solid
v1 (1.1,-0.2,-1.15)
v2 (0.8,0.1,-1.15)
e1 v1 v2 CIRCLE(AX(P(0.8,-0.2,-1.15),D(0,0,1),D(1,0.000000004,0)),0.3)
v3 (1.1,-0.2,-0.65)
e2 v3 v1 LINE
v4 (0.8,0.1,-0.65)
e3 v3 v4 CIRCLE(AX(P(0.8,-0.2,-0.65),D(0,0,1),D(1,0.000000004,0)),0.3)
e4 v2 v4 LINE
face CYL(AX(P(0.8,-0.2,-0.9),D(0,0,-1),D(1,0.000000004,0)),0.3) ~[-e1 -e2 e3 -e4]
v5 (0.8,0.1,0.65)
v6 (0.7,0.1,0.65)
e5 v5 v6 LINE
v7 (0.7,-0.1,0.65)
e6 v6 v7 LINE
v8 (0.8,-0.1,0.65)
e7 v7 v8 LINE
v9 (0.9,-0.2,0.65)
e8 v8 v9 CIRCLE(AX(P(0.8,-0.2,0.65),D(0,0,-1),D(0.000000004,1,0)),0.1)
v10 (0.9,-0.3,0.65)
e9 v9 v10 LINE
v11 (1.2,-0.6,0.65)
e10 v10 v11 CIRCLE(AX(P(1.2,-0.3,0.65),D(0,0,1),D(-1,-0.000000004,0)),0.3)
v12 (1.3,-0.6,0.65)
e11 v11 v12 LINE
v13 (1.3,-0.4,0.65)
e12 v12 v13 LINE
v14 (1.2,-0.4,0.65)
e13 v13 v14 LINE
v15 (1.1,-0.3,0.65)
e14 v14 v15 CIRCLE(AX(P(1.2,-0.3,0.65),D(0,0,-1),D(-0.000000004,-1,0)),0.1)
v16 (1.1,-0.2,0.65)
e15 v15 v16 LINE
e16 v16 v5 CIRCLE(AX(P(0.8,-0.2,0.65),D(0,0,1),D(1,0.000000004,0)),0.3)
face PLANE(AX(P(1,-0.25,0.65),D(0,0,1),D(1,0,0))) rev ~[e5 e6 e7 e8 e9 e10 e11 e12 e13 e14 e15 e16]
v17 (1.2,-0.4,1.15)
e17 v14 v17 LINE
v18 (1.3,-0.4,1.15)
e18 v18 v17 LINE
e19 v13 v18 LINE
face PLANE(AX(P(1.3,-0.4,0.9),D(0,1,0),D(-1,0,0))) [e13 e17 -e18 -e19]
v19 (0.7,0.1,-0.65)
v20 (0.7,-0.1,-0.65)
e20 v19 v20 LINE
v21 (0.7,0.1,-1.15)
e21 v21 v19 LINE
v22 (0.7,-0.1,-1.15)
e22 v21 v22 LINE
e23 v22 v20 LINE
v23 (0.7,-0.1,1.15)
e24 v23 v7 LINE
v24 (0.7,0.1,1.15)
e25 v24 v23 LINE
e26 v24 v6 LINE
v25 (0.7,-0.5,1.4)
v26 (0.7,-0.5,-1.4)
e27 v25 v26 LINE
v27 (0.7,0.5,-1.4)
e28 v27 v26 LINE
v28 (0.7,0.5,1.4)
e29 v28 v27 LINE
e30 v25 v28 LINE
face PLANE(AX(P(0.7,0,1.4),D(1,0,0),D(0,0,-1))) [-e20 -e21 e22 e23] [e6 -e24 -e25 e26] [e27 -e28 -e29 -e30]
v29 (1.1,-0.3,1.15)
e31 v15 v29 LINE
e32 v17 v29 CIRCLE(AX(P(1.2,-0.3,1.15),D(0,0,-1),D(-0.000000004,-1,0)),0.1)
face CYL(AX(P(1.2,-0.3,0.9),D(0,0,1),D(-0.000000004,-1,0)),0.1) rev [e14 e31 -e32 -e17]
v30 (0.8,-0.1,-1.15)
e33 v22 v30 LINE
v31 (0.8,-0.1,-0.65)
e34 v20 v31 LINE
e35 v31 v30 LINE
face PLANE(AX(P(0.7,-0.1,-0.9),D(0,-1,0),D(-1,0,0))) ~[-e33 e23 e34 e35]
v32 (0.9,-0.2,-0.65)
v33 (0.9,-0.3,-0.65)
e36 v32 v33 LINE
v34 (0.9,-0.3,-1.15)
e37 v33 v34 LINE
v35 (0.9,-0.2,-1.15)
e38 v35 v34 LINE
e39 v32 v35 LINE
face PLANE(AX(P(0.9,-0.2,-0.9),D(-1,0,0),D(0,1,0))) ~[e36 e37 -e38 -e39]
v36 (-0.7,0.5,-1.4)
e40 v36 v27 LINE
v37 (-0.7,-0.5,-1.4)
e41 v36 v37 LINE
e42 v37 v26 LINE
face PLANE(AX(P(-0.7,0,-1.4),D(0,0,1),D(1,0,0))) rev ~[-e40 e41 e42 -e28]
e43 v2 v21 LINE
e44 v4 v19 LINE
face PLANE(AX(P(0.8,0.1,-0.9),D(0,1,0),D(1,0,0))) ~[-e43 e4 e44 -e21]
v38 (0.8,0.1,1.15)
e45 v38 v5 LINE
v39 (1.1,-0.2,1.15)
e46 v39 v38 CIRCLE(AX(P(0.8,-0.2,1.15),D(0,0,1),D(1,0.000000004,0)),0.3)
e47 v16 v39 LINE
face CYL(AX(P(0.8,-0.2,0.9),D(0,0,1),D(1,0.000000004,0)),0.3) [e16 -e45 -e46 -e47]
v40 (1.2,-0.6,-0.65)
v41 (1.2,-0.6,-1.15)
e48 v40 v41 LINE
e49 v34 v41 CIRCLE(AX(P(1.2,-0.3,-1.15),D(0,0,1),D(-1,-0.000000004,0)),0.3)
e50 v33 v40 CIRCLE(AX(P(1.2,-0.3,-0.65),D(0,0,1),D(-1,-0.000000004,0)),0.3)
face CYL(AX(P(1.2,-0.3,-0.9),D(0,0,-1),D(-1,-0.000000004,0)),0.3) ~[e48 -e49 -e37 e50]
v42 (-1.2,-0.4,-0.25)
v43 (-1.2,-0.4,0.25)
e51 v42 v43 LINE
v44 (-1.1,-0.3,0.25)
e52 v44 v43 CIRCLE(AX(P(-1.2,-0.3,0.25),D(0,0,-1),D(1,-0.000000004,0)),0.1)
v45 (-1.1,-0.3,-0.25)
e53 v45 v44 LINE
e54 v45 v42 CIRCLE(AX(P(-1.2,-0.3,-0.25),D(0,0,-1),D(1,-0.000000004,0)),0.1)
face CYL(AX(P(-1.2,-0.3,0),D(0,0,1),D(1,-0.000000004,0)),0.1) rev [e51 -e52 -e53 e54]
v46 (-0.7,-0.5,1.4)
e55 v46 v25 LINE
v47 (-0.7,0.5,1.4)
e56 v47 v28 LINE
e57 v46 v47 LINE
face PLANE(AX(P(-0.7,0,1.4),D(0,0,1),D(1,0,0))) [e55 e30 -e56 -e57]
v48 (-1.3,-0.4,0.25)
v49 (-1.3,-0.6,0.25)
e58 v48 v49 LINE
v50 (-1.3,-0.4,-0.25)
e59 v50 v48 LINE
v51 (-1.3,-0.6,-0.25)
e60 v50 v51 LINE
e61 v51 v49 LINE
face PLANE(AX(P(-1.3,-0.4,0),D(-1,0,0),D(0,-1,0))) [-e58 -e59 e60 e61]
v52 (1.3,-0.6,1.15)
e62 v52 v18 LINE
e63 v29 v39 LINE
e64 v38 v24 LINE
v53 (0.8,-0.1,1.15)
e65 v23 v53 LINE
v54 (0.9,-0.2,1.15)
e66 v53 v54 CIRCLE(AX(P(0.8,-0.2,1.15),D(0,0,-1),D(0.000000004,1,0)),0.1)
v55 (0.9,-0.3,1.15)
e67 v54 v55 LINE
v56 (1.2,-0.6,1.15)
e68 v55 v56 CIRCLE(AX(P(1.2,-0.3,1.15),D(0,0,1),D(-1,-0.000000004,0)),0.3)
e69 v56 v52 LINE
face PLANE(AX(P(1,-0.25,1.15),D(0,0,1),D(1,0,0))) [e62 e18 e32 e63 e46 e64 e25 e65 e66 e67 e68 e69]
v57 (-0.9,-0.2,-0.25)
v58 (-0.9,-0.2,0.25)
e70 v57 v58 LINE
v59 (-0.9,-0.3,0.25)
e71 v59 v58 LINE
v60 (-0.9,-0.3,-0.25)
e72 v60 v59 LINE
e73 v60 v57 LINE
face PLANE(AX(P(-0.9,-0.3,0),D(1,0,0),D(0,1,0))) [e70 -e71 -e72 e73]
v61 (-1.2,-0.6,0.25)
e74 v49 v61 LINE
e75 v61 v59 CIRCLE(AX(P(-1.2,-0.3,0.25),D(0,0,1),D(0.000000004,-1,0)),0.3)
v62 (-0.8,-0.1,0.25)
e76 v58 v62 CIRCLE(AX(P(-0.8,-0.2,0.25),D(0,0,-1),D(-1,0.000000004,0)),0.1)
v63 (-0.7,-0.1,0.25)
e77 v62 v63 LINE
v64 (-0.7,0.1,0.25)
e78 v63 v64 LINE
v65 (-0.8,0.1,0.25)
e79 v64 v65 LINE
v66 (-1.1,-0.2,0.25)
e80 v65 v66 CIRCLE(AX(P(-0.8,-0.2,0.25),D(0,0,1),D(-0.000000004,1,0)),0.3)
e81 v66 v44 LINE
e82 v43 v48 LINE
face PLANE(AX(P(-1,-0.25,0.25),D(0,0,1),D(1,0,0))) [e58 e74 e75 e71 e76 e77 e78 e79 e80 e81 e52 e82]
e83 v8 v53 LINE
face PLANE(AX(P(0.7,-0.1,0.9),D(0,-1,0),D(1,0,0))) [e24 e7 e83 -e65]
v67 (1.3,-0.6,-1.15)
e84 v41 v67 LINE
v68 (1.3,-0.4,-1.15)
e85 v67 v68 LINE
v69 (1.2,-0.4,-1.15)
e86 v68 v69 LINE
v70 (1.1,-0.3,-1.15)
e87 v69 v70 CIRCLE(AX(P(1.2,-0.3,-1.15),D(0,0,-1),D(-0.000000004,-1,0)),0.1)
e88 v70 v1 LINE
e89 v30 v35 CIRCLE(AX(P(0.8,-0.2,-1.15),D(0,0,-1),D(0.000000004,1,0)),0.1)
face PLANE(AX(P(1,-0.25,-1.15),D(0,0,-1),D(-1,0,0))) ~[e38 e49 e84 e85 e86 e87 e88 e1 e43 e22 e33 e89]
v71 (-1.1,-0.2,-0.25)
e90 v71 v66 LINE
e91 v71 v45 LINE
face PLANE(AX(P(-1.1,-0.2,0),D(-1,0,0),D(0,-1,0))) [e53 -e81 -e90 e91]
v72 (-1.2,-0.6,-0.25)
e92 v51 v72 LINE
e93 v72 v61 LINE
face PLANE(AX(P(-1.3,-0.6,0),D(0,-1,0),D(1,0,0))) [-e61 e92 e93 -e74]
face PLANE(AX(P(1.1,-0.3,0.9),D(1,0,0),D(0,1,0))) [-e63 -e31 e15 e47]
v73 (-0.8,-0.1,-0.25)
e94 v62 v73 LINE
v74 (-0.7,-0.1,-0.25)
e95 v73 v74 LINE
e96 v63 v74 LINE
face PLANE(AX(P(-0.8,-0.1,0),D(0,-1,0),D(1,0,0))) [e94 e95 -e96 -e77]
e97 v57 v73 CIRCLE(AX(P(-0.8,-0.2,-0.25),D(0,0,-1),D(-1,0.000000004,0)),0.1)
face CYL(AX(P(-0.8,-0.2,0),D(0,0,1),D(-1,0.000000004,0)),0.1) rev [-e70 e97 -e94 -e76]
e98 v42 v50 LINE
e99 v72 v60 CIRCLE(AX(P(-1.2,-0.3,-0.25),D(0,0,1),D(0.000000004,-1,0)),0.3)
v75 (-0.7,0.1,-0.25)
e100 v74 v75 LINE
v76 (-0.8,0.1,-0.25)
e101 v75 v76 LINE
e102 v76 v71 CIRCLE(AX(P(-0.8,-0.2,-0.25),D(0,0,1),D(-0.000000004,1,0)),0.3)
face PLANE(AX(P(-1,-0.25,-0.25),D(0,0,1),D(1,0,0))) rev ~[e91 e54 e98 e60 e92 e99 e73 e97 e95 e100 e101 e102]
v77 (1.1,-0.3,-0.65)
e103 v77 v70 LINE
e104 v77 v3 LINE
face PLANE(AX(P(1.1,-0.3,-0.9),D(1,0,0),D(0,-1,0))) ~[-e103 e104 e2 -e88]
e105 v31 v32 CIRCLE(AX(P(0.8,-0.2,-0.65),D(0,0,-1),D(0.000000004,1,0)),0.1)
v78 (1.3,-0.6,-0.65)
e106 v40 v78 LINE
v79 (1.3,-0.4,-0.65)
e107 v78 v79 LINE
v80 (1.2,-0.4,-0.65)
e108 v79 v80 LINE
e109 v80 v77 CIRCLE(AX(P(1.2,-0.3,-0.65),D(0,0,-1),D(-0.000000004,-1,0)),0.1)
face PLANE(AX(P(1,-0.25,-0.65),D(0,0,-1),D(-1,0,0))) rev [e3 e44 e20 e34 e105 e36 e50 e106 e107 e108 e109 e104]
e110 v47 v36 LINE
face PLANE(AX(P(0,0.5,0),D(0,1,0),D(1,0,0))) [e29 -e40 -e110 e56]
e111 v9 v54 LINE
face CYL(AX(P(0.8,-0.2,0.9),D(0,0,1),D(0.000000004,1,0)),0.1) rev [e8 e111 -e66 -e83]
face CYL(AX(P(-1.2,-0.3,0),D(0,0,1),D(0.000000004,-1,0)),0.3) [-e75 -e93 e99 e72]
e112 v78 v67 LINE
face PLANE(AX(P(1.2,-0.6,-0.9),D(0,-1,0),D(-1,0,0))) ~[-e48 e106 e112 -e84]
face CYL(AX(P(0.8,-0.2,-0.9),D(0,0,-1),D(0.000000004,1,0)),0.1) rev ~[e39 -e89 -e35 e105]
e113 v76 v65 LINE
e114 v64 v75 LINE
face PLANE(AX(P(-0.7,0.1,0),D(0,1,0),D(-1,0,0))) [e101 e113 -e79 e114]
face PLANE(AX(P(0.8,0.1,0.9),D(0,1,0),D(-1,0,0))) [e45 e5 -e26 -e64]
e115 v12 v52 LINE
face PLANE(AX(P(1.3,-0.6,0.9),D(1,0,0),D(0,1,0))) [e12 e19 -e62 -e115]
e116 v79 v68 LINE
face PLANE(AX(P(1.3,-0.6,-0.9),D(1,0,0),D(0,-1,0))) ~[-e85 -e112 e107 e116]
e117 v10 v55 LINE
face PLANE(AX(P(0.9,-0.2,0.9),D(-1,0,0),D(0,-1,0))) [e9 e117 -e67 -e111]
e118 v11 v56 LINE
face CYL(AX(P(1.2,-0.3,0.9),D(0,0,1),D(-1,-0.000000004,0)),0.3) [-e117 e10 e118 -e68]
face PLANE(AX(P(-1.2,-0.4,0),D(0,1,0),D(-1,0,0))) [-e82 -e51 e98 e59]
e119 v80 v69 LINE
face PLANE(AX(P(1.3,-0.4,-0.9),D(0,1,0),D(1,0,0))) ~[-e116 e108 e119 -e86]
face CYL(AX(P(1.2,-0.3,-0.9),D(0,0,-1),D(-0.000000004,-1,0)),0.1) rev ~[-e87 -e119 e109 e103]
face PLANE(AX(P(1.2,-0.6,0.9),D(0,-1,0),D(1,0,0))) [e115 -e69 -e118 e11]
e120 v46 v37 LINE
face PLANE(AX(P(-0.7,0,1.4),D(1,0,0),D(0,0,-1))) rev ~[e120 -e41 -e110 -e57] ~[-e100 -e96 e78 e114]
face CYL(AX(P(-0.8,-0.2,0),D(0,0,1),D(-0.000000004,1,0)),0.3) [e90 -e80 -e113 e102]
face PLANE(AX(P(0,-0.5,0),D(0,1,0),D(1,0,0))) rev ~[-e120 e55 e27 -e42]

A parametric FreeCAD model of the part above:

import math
import FreeCAD as App
import Part
import Sketcher


def add_polygon(sketch, points):
    """Adds a closed chain of lines whose ends are joined by coincident constraints."""
    first, n = sketch.GeometryCount, len(points)
    for a, b in zip(points, points[1:] + points[:1]):
        sketch.addGeometry(Part.LineSegment(App.Vector(*a, 0), App.Vector(*b, 0)), False)
    for i in range(n):
        sketch.addConstraint(Sketcher.Constraint("Coincident", first + i, 2, first + (i + 1) % n, 1))

doc = App.newDocument("Part")
body = doc.addObject("PartDesign::Body", "Body")

# Sketch on XZ plane
sketch1 = body.newObject("Sketcher::SketchObject", "Sketch")
sketch1.AttachmentSupport = (doc.getObject("XZ_Plane"), [""])
sketch1.MapMode = "FlatFace"
add_polygon(sketch1, [(-0.7, -1.4), (-0.7, 1.4), (0.7, 1.4), (0.7, -1.4)])  # lines 0-3
sketch1.addConstraint(Sketcher.Constraint("Vertical", 0))
sketch1.addConstraint(Sketcher.Constraint("Horizontal", 1))
sketch1.addConstraint(Sketcher.Constraint("Vertical", 2))
sketch1.addConstraint(Sketcher.Constraint("Horizontal", 3))
sketch1.addConstraint(Sketcher.Constraint("Symmetric", 0, 2, 2, 2, -1, 1))
sketch1.addConstraint(Sketcher.Constraint("DistanceX", 1, 1, 1, 2, 1.4))
sketch1.addConstraint(Sketcher.Constraint("DistanceY", 0, 1, 0, 2, 2.8))
pad1 = body.newObject("PartDesign::Pad", "Pad")
pad1.Profile = sketch1
pad1.Length = 1
pad1.Midplane = True

# Sketch on XY plane
sketch2 = body.newObject("Sketcher::SketchObject", "Sketch001")
sketch2.AttachmentSupport = (doc.getObject("XY_Plane"), [""])
sketch2.MapMode = "FlatFace"
sketch2.addGeometry(Part.LineSegment(App.Vector(-0.7, 0.1, 0), App.Vector(-0.8, 0.1, 0)), False)
sketch2.addGeometry(Part.ArcOfCircle(Part.Circle(App.Vector(-0.8, -0.2, 0), App.Vector(0, 0, 1), 0.3), math.radians(90), math.radians(180)), False)
sketch2.addGeometry(Part.LineSegment(App.Vector(-1.1, -0.2, 0), App.Vector(-1.1, -0.3, 0)), False)
sketch2.addGeometry(Part.ArcOfCircle(Part.Circle(App.Vector(-1.2, -0.3, 0), App.Vector(0, 0, 1), 0.1), math.radians(-90), math.radians(0)), False)
sketch2.addGeometry(Part.LineSegment(App.Vector(-1.2, -0.4, 0), App.Vector(-1.3, -0.4, 0)), False)
sketch2.addGeometry(Part.LineSegment(App.Vector(-1.3, -0.4, 0), App.Vector(-1.3, -0.6, 0)), False)
sketch2.addGeometry(Part.LineSegment(App.Vector(-1.3, -0.6, 0), App.Vector(-1.2, -0.6, 0)), False)
sketch2.addGeometry(Part.ArcOfCircle(Part.Circle(App.Vector(-1.2, -0.3, 0), App.Vector(0, 0, 1), 0.3), math.radians(-90), math.radians(0)), False)
sketch2.addGeometry(Part.LineSegment(App.Vector(-0.9, -0.3, 0), App.Vector(-0.9, -0.2, 0)), False)
sketch2.addGeometry(Part.ArcOfCircle(Part.Circle(App.Vector(-0.8, -0.2, 0), App.Vector(0, 0, 1), 0.1), math.radians(90), math.radians(180)), False)
sketch2.addGeometry(Part.LineSegment(App.Vector(-0.8, -0.1, 0), App.Vector(-0.7, -0.1, 0)), False)
sketch2.addGeometry(Part.LineSegment(App.Vector(-0.7, -0.1, 0), App.Vector(-0.7, 0.1, 0)), False)
sketch2.addConstraint(Sketcher.Constraint("Tangent", 0, 2, 1, 1))
sketch2.addConstraint(Sketcher.Constraint("Tangent", 1, 2, 2, 1))
sketch2.addConstraint(Sketcher.Constraint("Tangent", 2, 2, 3, 2))
sketch2.addConstraint(Sketcher.Constraint("Tangent", 3, 1, 4, 1))
sketch2.addConstraint(Sketcher.Constraint("Coincident", 4, 2, 5, 1))
sketch2.addConstraint(Sketcher.Constraint("Coincident", 5, 2, 6, 1))
sketch2.addConstraint(Sketcher.Constraint("Tangent", 6, 2, 7, 1))
sketch2.addConstraint(Sketcher.Constraint("Tangent", 7, 2, 8, 1))
sketch2.addConstraint(Sketcher.Constraint("Tangent", 8, 2, 9, 2))
sketch2.addConstraint(Sketcher.Constraint("Tangent", 9, 1, 10, 1))
sketch2.addConstraint(Sketcher.Constraint("Coincident", 10, 2, 11, 1))
sketch2.addConstraint(Sketcher.Constraint("Coincident", 11, 2, 0, 1))
sketch2.addConstraint(Sketcher.Constraint("Horizontal", 0))
sketch2.addConstraint(Sketcher.Constraint("Vertical", 2))
sketch2.addConstraint(Sketcher.Constraint("Horizontal", 4))
sketch2.addConstraint(Sketcher.Constraint("Vertical", 5))
sketch2.addConstraint(Sketcher.Constraint("Horizontal", 6))
sketch2.addConstraint(Sketcher.Constraint("Vertical", 8))
sketch2.addConstraint(Sketcher.Constraint("Horizontal", 10))
sketch2.addConstraint(Sketcher.Constraint("Vertical", 11))
sketch2.addConstraint(Sketcher.Constraint("Coincident", 7, 3, 3, 3))
sketch2.addConstraint(Sketcher.Constraint("Coincident", 9, 3, 1, 3))
sketch2.addConstraint(Sketcher.Constraint("Equal", 1, 7))
sketch2.addConstraint(Sketcher.Constraint("Equal", 0, 4))
sketch2.addConstraint(Sketcher.Constraint("Equal", 10, 2))
sketch2.addConstraint(Sketcher.Constraint("Radius", 1, 0.3))
sketch2.addConstraint(Sketcher.Constraint("Radius", 3, 0.1))
sketch2.addConstraint(Sketcher.Constraint("DistanceX", 0, 2, 0, 1, 0.1))
sketch2.addConstraint(Sketcher.Constraint("DistanceX", 1, 3, -1, 1, 0.8))
sketch2.addConstraint(Sketcher.Constraint("DistanceY", 1, 3, -1, 1, 0.2))
pad2 = body.newObject("PartDesign::Pad", "Pad001")
pad2.Profile = sketch2
pad2.Length = 0.5
pad2.Midplane = True

# Sketch on XY plane
sketch3 = body.newObject("Sketcher::SketchObject", "Sketch002")
sketch3.AttachmentSupport = (doc.getObject("XY_Plane"), [""])
sketch3.MapMode = "FlatFace"
sketch3.AttachmentOffset = App.Placement(App.Vector(0, 0, 0.9), App.Rotation())
sketch3.addGeometry(Part.LineSegment(App.Vector(0.7, -0.1, 0), App.Vector(0.8, -0.1, 0)), False)
sketch3.addGeometry(Part.ArcOfCircle(Part.Circle(App.Vector(0.8, -0.2, 0), App.Vector(0, 0, 1), 0.1), math.radians(0), math.radians(90)), False)
sketch3.addGeometry(Part.LineSegment(App.Vector(0.9, -0.2, 0), App.Vector(0.9, -0.3, 0)), False)
sketch3.addGeometry(Part.ArcOfCircle(Part.Circle(App.Vector(1.2, -0.3, 0), App.Vector(0, 0, 1), 0.3), math.radians(-180), math.radians(-90)), False)
sketch3.addGeometry(Part.LineSegment(App.Vector(1.2, -0.6, 0), App.Vector(1.3, -0.6, 0)), False)
sketch3.addGeometry(Part.LineSegment(App.Vector(1.3, -0.6, 0), App.Vector(1.3, -0.4, 0)), False)
sketch3.addGeometry(Part.LineSegment(App.Vector(1.3, -0.4, 0), App.Vector(1.2, -0.4, 0)), False)
sketch3.addGeometry(Part.ArcOfCircle(Part.Circle(App.Vector(1.2, -0.3, 0), App.Vector(0, 0, 1), 0.1), math.radians(180), math.radians(270)), False)
sketch3.addGeometry(Part.LineSegment(App.Vector(1.1, -0.3, 0), App.Vector(1.1, -0.2, 0)), False)
sketch3.addGeometry(Part.ArcOfCircle(Part.Circle(App.Vector(0.8, -0.2, 0), App.Vector(0, 0, 1), 0.3), math.radians(0), math.radians(90)), False)
sketch3.addGeometry(Part.LineSegment(App.Vector(0.8, 0.1, 0), App.Vector(0.7, 0.1, 0)), False)
sketch3.addGeometry(Part.LineSegment(App.Vector(0.7, 0.1, 0), App.Vector(0.7, -0.1, 0)), False)
sketch3.addConstraint(Sketcher.Constraint("Tangent", 0, 2, 1, 2))
sketch3.addConstraint(Sketcher.Constraint("Tangent", 1, 1, 2, 1))
sketch3.addConstraint(Sketcher.Constraint("Tangent", 2, 2, 3, 1))
sketch3.addConstraint(Sketcher.Constraint("Tangent", 3, 2, 4, 1))
sketch3.addConstraint(Sketcher.Constraint("Coincident", 4, 2, 5, 1))
sketch3.addConstraint(Sketcher.Constraint("Coincident", 5, 2, 6, 1))
sketch3.addConstraint(Sketcher.Constraint("Tangent", 6, 2, 7, 2))
sketch3.addConstraint(Sketcher.Constraint("Tangent", 7, 1, 8, 1))
sketch3.addConstraint(Sketcher.Constraint("Tangent", 8, 2, 9, 1))
sketch3.addConstraint(Sketcher.Constraint("Tangent", 9, 2, 10, 1))
sketch3.addConstraint(Sketcher.Constraint("Coincident", 10, 2, 11, 1))
sketch3.addConstraint(Sketcher.Constraint("Coincident", 11, 2, 0, 1))
sketch3.addConstraint(Sketcher.Constraint("Horizontal", 0))
sketch3.addConstraint(Sketcher.Constraint("Vertical", 2))
sketch3.addConstraint(Sketcher.Constraint("Horizontal", 4))
sketch3.addConstraint(Sketcher.Constraint("Vertical", 5))
sketch3.addConstraint(Sketcher.Constraint("Horizontal", 6))
sketch3.addConstraint(Sketcher.Constraint("Vertical", 8))
sketch3.addConstraint(Sketcher.Constraint("Horizontal", 10))
sketch3.addConstraint(Sketcher.Constraint("Vertical", 11))
sketch3.addConstraint(Sketcher.Constraint("Coincident", 7, 3, 3, 3))
sketch3.addConstraint(Sketcher.Constraint("Coincident", 9, 3, 1, 3))
sketch3.addConstraint(Sketcher.Constraint("Equal", 1, 7))
sketch3.addConstraint(Sketcher.Constraint("Equal", 0, 4))
sketch3.addConstraint(Sketcher.Constraint("Equal", 10, 2))
sketch3.addConstraint(Sketcher.Constraint("Radius", 1, 0.1))
sketch3.addConstraint(Sketcher.Constraint("Radius", 3, 0.3))
sketch3.addConstraint(Sketcher.Constraint("DistanceX", 0, 1, 0, 2, 0.1))
sketch3.addConstraint(Sketcher.Constraint("DistanceX", -1, 1, 1, 3, 0.8))
sketch3.addConstraint(Sketcher.Constraint("DistanceY", 1, 3, -1, 1, 0.2))
pad3 = body.newObject("PartDesign::Pad", "Pad002")
pad3.Profile = sketch3
pad3.Length = 0.5
pad3.Midplane = True
doc.recompute()

mirrored = body.newObject("PartDesign::Mirrored", "Mirrored")
mirrored.Originals = [pad3]
mirrored.MirrorPlane = (doc.getObject("XY_Plane"), [""])
body.Tip = mirrored

doc.recompute()
